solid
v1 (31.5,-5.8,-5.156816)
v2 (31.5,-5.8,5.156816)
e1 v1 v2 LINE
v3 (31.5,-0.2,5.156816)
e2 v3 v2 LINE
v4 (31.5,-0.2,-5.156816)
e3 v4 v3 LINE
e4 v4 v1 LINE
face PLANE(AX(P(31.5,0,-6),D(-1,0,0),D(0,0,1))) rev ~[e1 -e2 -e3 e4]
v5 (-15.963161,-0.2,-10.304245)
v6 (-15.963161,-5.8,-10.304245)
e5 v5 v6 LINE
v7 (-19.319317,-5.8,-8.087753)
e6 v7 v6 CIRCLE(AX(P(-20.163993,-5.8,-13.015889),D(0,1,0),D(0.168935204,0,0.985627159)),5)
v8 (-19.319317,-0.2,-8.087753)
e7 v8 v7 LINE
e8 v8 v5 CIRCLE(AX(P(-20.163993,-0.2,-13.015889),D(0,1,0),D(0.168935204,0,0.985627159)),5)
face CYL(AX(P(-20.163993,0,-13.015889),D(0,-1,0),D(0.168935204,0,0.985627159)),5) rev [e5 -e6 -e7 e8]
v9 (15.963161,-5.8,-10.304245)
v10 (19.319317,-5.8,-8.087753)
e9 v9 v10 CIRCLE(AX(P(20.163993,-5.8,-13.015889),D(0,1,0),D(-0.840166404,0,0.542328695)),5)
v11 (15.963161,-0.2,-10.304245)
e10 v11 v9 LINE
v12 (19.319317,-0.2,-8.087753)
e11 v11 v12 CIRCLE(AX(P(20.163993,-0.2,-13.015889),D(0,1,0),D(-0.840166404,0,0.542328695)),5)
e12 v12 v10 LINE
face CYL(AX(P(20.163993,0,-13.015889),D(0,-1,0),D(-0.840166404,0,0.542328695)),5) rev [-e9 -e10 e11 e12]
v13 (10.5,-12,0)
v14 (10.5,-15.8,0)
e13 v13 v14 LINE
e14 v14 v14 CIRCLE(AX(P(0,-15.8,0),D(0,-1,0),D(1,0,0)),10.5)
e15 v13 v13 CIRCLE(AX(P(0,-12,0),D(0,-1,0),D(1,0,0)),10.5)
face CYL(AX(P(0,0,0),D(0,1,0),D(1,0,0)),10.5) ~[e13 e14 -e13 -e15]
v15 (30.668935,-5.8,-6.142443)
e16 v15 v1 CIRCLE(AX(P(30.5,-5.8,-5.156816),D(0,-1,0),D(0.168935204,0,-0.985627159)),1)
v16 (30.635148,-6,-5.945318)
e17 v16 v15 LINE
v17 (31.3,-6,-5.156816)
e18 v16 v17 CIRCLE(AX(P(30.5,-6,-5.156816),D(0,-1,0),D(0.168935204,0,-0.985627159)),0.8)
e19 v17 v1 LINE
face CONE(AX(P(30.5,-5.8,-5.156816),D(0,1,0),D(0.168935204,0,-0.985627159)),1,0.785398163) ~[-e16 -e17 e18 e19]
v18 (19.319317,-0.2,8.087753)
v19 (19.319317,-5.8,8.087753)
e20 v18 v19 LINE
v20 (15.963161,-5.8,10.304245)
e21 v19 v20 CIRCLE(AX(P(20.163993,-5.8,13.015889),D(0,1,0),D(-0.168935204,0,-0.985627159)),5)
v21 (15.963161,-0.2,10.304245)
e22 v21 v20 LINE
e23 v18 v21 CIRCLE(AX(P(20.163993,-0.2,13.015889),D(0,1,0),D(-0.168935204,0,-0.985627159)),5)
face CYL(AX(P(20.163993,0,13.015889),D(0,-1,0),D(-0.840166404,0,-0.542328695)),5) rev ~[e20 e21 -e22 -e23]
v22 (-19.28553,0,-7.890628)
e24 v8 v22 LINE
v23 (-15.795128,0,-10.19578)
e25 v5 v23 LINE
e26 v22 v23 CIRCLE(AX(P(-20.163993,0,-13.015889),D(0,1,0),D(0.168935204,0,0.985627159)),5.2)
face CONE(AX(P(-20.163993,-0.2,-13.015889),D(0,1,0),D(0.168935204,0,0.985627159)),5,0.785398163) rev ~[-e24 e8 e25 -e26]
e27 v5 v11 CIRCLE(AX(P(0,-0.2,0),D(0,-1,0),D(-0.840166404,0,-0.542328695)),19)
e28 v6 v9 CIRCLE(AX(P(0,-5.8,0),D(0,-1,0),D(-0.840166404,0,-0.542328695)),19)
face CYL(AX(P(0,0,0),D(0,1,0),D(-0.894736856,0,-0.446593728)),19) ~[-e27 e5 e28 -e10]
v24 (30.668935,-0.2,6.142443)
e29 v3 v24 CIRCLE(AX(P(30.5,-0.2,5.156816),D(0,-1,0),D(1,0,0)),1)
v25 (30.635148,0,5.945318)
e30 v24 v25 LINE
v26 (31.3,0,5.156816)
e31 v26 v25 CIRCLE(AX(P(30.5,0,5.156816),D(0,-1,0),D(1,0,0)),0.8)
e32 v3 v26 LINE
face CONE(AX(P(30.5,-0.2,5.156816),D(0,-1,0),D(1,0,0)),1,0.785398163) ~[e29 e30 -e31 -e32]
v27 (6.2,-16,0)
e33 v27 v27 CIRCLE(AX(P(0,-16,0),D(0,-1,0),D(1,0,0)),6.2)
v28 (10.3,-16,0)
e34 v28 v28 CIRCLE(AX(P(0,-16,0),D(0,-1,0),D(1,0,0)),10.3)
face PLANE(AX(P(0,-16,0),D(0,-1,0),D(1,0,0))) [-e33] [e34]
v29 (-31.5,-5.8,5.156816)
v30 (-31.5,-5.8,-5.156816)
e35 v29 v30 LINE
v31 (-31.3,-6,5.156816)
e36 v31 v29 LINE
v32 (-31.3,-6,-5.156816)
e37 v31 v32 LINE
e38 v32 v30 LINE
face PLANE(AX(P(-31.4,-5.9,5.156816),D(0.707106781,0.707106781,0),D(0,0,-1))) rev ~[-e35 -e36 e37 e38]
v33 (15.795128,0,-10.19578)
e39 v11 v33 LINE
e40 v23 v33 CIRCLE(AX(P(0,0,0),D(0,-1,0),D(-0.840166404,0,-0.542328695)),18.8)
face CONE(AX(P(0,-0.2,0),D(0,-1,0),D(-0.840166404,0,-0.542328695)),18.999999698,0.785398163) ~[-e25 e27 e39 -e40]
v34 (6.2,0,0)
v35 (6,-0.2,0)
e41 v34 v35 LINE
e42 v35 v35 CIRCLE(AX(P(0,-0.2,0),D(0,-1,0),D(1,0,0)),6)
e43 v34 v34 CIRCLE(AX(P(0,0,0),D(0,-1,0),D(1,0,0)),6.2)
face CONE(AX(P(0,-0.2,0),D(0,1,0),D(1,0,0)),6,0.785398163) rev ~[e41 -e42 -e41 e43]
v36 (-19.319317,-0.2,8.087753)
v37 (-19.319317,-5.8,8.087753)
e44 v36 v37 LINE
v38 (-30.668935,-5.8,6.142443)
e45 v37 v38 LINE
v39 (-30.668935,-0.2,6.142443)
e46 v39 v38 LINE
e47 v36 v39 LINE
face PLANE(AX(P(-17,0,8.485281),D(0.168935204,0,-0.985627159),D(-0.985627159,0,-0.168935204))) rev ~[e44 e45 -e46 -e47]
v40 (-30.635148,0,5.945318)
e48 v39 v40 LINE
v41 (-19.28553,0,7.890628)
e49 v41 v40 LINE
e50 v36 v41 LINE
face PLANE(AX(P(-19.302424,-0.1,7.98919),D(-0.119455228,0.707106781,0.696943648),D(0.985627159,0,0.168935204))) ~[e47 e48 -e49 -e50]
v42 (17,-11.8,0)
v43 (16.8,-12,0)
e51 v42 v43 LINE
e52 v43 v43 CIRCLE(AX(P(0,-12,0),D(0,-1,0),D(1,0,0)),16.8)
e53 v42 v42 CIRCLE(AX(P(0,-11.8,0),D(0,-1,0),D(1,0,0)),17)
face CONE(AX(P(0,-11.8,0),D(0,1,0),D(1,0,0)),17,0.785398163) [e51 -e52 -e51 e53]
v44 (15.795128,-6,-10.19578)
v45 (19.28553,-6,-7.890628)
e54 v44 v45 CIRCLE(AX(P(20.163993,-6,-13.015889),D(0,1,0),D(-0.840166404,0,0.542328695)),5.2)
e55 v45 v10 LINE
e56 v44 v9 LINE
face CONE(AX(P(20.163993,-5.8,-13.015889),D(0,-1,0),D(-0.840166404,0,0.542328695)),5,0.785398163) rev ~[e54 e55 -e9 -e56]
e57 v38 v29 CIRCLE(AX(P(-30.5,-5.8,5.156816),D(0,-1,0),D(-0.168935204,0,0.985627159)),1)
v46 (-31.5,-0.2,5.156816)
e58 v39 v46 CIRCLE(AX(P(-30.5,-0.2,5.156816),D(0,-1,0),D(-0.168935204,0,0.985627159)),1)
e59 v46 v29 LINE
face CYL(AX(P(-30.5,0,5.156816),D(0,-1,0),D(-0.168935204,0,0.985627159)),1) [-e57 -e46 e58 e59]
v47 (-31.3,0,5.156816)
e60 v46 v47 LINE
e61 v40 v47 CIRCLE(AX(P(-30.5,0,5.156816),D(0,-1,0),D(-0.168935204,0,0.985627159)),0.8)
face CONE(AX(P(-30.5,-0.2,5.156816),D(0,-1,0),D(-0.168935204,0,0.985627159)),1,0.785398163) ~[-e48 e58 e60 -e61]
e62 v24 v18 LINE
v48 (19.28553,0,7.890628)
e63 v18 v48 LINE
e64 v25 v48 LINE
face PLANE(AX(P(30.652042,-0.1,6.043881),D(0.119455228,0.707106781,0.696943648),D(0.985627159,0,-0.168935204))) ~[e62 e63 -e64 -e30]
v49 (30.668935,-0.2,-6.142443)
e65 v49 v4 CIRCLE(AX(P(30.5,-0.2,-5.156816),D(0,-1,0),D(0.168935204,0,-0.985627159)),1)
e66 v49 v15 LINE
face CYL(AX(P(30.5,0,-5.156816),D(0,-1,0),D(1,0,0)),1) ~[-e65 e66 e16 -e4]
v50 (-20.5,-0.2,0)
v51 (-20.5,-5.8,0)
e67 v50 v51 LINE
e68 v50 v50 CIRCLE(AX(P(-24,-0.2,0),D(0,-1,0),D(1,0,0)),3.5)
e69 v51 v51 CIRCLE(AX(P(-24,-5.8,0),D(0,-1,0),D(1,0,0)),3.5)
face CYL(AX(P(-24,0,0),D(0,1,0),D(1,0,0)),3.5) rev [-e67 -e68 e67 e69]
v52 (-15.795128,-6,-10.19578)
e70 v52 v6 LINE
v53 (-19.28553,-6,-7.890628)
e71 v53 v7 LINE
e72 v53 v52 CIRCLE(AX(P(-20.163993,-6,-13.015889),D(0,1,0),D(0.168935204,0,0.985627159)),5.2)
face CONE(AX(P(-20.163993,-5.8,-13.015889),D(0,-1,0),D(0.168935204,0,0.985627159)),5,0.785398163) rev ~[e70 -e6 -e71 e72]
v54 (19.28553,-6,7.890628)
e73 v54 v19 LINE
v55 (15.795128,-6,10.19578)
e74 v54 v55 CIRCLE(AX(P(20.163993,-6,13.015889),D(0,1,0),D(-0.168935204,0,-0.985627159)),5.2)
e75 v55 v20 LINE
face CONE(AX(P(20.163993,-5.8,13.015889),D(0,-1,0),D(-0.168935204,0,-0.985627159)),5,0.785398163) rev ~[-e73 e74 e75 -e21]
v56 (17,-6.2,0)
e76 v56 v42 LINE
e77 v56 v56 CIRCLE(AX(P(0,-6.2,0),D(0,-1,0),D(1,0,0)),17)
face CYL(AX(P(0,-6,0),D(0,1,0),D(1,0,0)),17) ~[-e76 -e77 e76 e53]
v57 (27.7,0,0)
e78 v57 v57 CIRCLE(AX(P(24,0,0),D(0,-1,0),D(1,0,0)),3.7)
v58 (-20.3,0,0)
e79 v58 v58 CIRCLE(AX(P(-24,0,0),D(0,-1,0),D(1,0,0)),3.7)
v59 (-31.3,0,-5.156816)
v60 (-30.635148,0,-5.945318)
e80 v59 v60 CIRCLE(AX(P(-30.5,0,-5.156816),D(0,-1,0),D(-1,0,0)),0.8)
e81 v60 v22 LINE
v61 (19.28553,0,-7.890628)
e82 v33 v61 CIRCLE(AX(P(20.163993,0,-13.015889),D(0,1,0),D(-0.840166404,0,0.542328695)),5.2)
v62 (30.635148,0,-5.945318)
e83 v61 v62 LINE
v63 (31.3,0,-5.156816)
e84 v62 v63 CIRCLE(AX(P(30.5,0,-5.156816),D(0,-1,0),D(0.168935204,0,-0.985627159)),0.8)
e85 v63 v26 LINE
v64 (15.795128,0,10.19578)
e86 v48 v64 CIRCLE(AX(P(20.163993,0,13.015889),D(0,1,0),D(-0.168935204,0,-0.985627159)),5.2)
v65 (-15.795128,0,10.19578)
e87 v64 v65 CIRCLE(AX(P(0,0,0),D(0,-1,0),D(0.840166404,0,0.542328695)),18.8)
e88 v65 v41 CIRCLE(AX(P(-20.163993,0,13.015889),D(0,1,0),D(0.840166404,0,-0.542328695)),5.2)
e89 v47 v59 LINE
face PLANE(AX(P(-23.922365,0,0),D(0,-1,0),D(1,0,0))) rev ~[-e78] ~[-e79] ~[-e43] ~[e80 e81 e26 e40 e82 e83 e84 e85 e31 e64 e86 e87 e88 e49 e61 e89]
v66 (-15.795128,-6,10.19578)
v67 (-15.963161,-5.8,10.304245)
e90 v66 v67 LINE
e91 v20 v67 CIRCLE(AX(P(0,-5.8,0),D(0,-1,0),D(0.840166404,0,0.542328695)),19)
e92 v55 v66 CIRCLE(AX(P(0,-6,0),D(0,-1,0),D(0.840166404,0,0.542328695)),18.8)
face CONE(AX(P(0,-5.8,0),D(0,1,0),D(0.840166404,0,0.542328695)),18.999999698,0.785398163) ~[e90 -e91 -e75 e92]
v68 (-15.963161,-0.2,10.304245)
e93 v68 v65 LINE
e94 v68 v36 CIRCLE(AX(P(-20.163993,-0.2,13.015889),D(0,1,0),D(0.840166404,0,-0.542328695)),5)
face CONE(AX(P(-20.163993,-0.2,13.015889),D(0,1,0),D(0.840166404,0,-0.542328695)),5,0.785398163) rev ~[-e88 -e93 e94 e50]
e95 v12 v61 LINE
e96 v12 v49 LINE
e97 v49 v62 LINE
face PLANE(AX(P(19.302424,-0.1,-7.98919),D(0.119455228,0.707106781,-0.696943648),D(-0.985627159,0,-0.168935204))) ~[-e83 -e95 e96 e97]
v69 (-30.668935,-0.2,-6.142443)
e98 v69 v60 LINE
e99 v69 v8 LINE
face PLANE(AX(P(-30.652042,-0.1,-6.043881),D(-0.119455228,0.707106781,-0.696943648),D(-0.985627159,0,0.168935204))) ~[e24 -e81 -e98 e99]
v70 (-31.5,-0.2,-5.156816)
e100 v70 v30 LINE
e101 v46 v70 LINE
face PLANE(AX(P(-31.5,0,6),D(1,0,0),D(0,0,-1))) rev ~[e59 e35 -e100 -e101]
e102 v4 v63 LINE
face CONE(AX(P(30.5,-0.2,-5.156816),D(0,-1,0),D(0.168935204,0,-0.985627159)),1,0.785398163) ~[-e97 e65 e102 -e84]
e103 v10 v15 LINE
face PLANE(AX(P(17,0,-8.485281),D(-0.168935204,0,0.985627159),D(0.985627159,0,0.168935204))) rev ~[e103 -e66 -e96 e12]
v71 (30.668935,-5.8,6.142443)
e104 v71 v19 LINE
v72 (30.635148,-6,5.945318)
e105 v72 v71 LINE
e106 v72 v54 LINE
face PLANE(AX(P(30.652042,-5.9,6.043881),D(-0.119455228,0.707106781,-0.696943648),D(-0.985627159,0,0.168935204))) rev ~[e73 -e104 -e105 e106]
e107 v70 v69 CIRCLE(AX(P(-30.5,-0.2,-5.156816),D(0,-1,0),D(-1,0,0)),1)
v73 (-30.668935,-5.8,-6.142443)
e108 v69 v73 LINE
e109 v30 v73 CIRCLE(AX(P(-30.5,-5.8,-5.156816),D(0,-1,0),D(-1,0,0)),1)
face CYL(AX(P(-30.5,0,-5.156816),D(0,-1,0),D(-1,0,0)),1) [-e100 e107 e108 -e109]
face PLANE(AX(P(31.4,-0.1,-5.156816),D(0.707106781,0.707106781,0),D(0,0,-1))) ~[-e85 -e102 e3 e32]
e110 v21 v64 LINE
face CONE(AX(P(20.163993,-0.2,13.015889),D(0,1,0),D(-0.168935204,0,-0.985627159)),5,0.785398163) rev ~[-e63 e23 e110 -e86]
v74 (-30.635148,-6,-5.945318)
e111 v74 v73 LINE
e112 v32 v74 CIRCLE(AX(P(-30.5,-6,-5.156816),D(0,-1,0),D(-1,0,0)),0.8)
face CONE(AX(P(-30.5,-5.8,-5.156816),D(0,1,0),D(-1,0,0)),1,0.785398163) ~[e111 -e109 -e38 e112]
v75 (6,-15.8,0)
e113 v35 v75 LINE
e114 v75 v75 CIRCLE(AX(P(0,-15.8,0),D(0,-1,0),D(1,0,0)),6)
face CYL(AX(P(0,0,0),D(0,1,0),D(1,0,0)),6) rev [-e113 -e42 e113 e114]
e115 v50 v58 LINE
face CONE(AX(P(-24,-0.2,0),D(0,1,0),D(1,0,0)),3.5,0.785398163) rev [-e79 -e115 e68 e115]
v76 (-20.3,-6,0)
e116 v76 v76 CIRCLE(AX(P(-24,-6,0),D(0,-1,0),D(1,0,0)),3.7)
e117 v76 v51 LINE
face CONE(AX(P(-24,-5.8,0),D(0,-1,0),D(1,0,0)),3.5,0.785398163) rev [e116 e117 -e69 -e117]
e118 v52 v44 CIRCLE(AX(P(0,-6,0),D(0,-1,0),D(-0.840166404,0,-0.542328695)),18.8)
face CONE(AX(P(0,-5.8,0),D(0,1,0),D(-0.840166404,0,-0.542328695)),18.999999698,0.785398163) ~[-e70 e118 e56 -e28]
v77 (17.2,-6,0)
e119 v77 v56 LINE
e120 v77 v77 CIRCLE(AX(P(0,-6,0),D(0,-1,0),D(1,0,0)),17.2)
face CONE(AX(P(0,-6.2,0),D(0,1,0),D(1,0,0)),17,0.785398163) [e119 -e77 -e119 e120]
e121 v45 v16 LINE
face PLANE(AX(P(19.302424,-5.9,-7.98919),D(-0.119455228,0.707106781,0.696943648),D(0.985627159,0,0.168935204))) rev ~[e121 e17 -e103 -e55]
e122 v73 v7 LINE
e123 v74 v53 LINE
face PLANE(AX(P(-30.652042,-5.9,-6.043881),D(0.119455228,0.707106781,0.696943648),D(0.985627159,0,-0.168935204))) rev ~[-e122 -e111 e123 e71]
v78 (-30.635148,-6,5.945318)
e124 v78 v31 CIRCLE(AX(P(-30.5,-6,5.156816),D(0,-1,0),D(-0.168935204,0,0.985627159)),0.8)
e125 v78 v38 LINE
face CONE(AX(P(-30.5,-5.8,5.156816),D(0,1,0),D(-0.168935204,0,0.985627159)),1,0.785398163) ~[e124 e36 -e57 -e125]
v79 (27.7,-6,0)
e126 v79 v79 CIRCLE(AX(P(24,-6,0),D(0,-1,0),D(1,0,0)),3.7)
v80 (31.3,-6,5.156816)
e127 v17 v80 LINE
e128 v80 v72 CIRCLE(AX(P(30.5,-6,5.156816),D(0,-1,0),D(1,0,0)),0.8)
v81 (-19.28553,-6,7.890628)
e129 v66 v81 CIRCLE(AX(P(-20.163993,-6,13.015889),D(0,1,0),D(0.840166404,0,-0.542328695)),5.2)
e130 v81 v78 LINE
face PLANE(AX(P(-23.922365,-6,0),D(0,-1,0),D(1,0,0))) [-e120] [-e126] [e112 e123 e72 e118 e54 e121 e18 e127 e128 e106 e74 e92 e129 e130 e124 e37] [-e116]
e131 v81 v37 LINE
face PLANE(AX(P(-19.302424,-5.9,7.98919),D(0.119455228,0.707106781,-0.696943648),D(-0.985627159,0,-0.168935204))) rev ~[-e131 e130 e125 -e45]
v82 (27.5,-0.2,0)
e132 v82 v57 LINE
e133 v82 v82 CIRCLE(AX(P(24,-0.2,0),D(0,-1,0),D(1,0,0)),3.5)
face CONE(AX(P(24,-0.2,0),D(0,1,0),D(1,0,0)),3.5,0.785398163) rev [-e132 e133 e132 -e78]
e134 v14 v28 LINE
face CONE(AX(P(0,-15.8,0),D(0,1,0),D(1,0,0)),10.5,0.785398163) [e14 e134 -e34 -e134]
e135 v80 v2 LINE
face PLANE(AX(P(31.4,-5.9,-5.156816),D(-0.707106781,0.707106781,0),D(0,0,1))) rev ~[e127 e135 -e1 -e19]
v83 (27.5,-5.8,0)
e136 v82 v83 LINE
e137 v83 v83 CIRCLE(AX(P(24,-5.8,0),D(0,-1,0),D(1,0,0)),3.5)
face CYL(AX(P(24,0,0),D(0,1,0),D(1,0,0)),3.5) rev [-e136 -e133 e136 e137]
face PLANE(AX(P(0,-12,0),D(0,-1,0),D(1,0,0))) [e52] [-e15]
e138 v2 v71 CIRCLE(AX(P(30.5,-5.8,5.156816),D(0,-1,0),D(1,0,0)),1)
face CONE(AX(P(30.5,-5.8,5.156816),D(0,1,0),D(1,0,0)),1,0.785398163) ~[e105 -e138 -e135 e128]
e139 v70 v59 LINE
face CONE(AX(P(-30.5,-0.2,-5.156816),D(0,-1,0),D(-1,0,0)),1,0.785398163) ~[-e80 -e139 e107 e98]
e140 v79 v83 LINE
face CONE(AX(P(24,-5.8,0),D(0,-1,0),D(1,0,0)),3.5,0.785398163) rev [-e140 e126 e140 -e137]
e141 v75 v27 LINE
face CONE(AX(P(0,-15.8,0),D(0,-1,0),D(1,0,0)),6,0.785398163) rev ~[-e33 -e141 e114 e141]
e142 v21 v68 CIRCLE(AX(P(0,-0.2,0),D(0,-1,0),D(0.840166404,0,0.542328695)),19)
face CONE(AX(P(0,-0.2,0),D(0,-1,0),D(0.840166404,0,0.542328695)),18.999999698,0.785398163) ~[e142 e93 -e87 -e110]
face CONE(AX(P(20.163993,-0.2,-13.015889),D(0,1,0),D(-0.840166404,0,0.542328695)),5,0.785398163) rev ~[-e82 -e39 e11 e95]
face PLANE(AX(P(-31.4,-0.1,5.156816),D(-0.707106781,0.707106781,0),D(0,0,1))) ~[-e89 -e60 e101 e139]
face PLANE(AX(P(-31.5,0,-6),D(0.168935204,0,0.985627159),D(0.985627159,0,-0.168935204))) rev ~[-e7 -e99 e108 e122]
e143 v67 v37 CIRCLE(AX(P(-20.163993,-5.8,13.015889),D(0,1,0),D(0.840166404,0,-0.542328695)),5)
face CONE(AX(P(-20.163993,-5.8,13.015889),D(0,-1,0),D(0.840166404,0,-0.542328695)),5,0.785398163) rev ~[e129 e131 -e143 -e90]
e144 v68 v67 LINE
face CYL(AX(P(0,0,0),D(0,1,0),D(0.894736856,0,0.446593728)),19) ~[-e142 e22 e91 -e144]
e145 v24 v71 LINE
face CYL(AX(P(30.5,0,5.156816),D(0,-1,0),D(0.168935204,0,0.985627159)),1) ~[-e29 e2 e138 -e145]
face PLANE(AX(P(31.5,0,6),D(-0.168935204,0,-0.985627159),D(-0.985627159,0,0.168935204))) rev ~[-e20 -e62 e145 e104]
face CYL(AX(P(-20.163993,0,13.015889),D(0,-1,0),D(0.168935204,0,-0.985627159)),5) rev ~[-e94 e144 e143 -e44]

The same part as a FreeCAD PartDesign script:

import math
import FreeCAD as App
import Part
import Sketcher


def edges_at(feature, points):
    """Names of the edges that pass closest to the given points."""
    edges = feature.Shape.Edges
    near = lambda p: min(range(len(edges)), key=lambda i: edges[i].distToShape(Part.Vertex(*p))[0])
    return sorted({f"Edge{near(p) + 1}" for p in points})

doc = App.newDocument("Part")
body = doc.addObject("PartDesign::Body", "Body")

# Sketch on XZ plane
sketch1 = body.newObject("Sketcher::SketchObject", "Sketch")
sketch1.AttachmentSupport = (doc.getObject("XZ_Plane"), [""])
sketch1.MapMode = "FlatFace"
sketch1.addGeometry(Part.LineSegment(App.Vector(-31.5, 6, 0), App.Vector(-31.5, -6, 0)), False)
sketch1.addGeometry(Part.LineSegment(App.Vector(-31.5, -6, 0), App.Vector(-17, -8.5, 0)), False)
sketch1.addGeometry(Part.ArcOfCircle(Part.Circle(App.Vector(0, 0, 0), App.Vector(0, 0, 1), 19), math.radians(-153), math.radians(-27)), False)
sketch1.addGeometry(Part.LineSegment(App.Vector(17, -8.5, 0), App.Vector(31.5, -6, 0)), False)
sketch1.addGeometry(Part.LineSegment(App.Vector(31.5, -6, 0), App.Vector(31.5, 6, 0)), False)
sketch1.addGeometry(Part.LineSegment(App.Vector(31.5, 6, 0), App.Vector(17, 8.5, 0)), False)
sketch1.addGeometry(Part.ArcOfCircle(Part.Circle(App.Vector(0, 0, 0), App.Vector(0, 0, 1), 19), math.radians(27), math.radians(153)), False)
sketch1.addGeometry(Part.LineSegment(App.Vector(-17, 8.5, 0), App.Vector(-31.5, 6, 0)), False)
sketch1.addGeometry(Part.Circle(App.Vector(-24, 0, 0), App.Vector(0, 0, 1), 3.5), False)
sketch1.addGeometry(Part.Circle(App.Vector(0, 0, 0), App.Vector(0, 0, 1), 10.5), False)
sketch1.addGeometry(Part.Circle(App.Vector(24, 0, 0), App.Vector(0, 0, 1), 3.5), False)
sketch1.addConstraint(Sketcher.Constraint("Coincident", 0, 2, 1, 1))
sketch1.addConstraint(Sketcher.Constraint("Coincident", 1, 2, 2, 1))
sketch1.addConstraint(Sketcher.Constraint("Coincident", 2, 2, 3, 1))
sketch1.addConstraint(Sketcher.Constraint("Coincident", 3, 2, 4, 1))
sketch1.addConstraint(Sketcher.Constraint("Coincident", 4, 2, 5, 1))
sketch1.addConstraint(Sketcher.Constraint("Coincident", 5, 2, 6, 1))
sketch1.addConstraint(Sketcher.Constraint("Coincident", 6, 2, 7, 1))
sketch1.addConstraint(Sketcher.Constraint("Coincident", 7, 2, 0, 1))
sketch1.addConstraint(Sketcher.Constraint("Vertical", 0))
sketch1.addConstraint(Sketcher.Constraint("Vertical", 4))
sketch1.addConstraint(Sketcher.Constraint("Coincident", 2, 3, -1, 1))
sketch1.addConstraint(Sketcher.Constraint("Coincident", 6, 3, -1, 1))
sketch1.addConstraint(Sketcher.Constraint("Coincident", 9, 3, -1, 1))
sketch1.addConstraint(Sketcher.Constraint("Equal", 2, 6))
sketch1.addConstraint(Sketcher.Constraint("Equal", 8, 10))
sketch1.addConstraint(Sketcher.Constraint("Symmetric", 8, 3, 10, 3, -1, 1))
sketch1.addConstraint(Sketcher.Constraint("Symmetric", 0, 2, 4, 2, -1, 1))
sketch1.addConstraint(Sketcher.Constraint("PointOnObject", 8, 3, -1))
sketch1.addConstraint(Sketcher.Constraint("Parallel", 1, 5))
sketch1.addConstraint(Sketcher.Constraint("Parallel", 3, 7))
sketch1.addConstraint(Sketcher.Constraint("Horizontal", 1, 2, 2, 2))
sketch1.addConstraint(Sketcher.Constraint("Horizontal", 0, 2, 3, 2))
sketch1.addConstraint(Sketcher.Constraint("Horizontal", 5, 2, 6, 2))
sketch1.addConstraint(Sketcher.Constraint("Diameter", 8, 7.0))
sketch1.addConstraint(Sketcher.Constraint("Diameter", 9, 21.0))
sketch1.addConstraint(Sketcher.Constraint("Radius", 2, 19.0))
sketch1.addConstraint(Sketcher.Constraint("DistanceY", 0, 2, 0, 1, 12.0))
sketch1.addConstraint(Sketcher.Constraint("DistanceX", 8, 3, -1, 1, 24.0))
sketch1.addConstraint(Sketcher.Constraint("DistanceX", 1, 2, -1, 1, 17.0))
sketch1.addConstraint(Sketcher.Constraint("DistanceX", 0, 2, -1, 1, 31.5))
pad1 = body.newObject("PartDesign::Pad", "Pad")
pad1.Profile = sketch1
pad1.Length = 6

# Sketch on XZ plane
sketch2 = body.newObject("Sketcher::SketchObject", "Sketch001")
sketch2.AttachmentSupport = (doc.getObject("XZ_Plane"), [""])
sketch2.MapMode = "FlatFace"
sketch2.addGeometry(Part.Circle(App.Vector(0, 0, 0), App.Vector(0, 0, 1), 10), False)
sketch2.addGeometry(Part.Circle(App.Vector(0, 0, 0), App.Vector(0, 0, 1), 6), False)
sketch2.addConstraint(Sketcher.Constraint("Coincident", 0, 3, -1, 1))
sketch2.addConstraint(Sketcher.Constraint("Coincident", 1, 3, -1, 1))
sketch2.addConstraint(Sketcher.Constraint("Diameter", 0, 21.0))
sketch2.addConstraint(Sketcher.Constraint("Diameter", 1, 12.0))
pad2 = body.newObject("PartDesign::Pad", "Pad001")
pad2.Profile = sketch2
pad2.Length = 16

# Sketch on XZ plane
sketch3 = body.newObject("Sketcher::SketchObject", "Sketch002")
sketch3.AttachmentSupport = (doc.getObject("XZ_Plane"), [""])
sketch3.MapMode = "FlatFace"
sketch3.AttachmentOffset = App.Placement(App.Vector(0, 0, 6), App.Rotation())
sketch3.addGeometry(Part.Circle(App.Vector(0, 0, 0), App.Vector(0, 0, 1), 17), False)
sketch3.addGeometry(Part.Circle(App.Vector(0, 0, 0), App.Vector(0, 0, 1), 10), False)
sketch3.addConstraint(Sketcher.Constraint("Coincident", 0, 3, -1, 1))
sketch3.addConstraint(Sketcher.Constraint("Coincident", 1, 3, -1, 1))
sketch3.addConstraint(Sketcher.Constraint("Diameter", 0, 34.0))
sketch3.addConstraint(Sketcher.Constraint("Diameter", 1, 21.0))
pad3 = body.newObject("PartDesign::Pad", "Pad002")
pad3.Profile = sketch3
pad3.Length = 6
doc.recompute()

fillet = body.newObject("PartDesign::Fillet", "Fillet")
fillet.Base = (pad3, edges_at(pad3, [
    (-17, -3, -8.485),
    (17, -3, -8.485),
    (17, -3, 8.485),
    (-17, -3, 8.485),
]))
fillet.Radius = 5
doc.recompute()

fillet2 = body.newObject("PartDesign::Fillet", "Fillet001")
fillet2.Base = (fillet, edges_at(fillet, [
    (-31.5, -3, -6),
    (31.5, -3, -6),
    (31.5, -3, 6),
    (-31.5, -3, 6),
]))
fillet2.Radius = 1
doc.recompute()

chamfer = body.newObject("PartDesign::Chamfer", "Chamfer")
chamfer.Base = (fillet2, edges_at(fillet2, [
    (-17, -12, 0),
    (24.994, -6, -7.115),
    (31.265, -6, -5.801),
    (17.409, -6, -8.844),
    (31.5, -6, 0),
    (0, -6, -19),
    (31.265, -6, 5.801),
    (-17.409, -6, -8.844),
    (24.994, -6, 7.115),
    (-24.994, -6, -7.115),
    (17.409, -6, 8.844),
    (-31.265, -6, -5.801),
    (0, -6, 19),
    (-31.5, -6, 0),
    (-17.409, -6, 8.844),
    (-31.265, -6, 5.801),
    (-24.994, -6, 7.115),
    (-27.5, -6, 0),
    (-17, -6, 0),
    (20.5, -6, 0),
    (24.994, 0, 7.115),
    (31.265, 0, 5.801),
    (17.409, 0, 8.844),
    (31.5, 0, 0),
    (0, 0, 19),
    (31.265, 0, -5.801),
    (-17.409, 0, 8.844),
    (24.994, 0, -7.115),
    (-24.994, 0, 7.115),
    (17.409, 0, -8.844),
    (-31.265, 0, 5.801),
    (0, 0, -19),
    (-31.5, 0, 0),
    (-17.409, 0, -8.844),
    (-31.265, 0, -5.801),
    (-24.994, 0, -7.115),
    (-27.5, 0, 0),
    (20.5, 0, 0),
    (-6, 0, 0),
]))
chamfer.Size = 0.2
doc.recompute()

chamfer2 = body.newObject("PartDesign::Chamfer", "Chamfer001")
chamfer2.Base = (chamfer, edges_at(chamfer, [(-10.5, -16, 0), (-6, -16, 0)]))
chamfer2.Size = 0.2

doc.recompute()
